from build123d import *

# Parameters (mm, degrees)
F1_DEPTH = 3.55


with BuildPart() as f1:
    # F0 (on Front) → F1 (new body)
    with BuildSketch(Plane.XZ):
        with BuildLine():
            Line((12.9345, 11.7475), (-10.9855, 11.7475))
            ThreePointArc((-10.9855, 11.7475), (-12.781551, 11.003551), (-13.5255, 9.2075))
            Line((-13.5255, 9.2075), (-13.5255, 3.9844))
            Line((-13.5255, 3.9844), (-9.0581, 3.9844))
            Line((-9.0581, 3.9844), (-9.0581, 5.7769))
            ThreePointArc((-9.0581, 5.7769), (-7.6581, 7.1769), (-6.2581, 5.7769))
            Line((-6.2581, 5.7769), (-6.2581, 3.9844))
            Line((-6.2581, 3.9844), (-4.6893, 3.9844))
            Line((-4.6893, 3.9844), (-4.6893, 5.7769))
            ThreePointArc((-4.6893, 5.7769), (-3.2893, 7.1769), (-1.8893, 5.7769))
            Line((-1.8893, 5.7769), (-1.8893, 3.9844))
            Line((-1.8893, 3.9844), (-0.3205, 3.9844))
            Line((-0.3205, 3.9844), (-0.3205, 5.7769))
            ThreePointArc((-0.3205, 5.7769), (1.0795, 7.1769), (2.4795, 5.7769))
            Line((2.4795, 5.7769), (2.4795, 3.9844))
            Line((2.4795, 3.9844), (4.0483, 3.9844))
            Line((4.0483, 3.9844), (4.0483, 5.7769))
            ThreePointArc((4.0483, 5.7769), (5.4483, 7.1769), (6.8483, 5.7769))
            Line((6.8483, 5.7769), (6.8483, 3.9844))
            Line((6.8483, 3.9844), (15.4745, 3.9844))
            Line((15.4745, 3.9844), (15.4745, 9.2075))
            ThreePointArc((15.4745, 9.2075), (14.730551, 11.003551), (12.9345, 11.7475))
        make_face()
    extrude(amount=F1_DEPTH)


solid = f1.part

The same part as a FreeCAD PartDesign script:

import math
import FreeCAD as App
import Part
import Sketcher

V = App.Vector
Q = App.Units.Quantity

doc = App.newDocument("Part")
body = doc.addObject("PartDesign::Body", "Body")

# Sketch on XZ plane
sketch1 = body.newObject("Sketcher::SketchObject", "Sketch")
sketch1.AttachmentSupport = (doc.getObject("XZ_Plane"), [""])
sketch1.MapMode = "FlatFace"
sketch1.addGeometry([
    Part.LineSegment(V(12.9, 11.7, 0), V(-11, 11.7, 0)),  # 0
    Part.ArcOfCircle(Part.Circle(V(-11, 9.2, 0), V(0, 0, 1), 2.5), math.radians(90), math.radians(180)),  # 1
    Part.LineSegment(V(-13.5, 9.2, 0), V(-13.5, 4, 0)),  # 2
    Part.LineSegment(V(-13.5, 4, 0), V(-9.1, 4, 0)),  # 3
    Part.LineSegment(V(-9.1, 4, 0), V(-9.1, 5.8, 0)),  # 4
    Part.ArcOfCircle(Part.Circle(V(-7.7, 5.8, 0), V(0, 0, 1), 1.4), math.radians(0), math.radians(180)),  # 5
    Part.LineSegment(V(-6.3, 5.8, 0), V(-6.3, 4, 0)),  # 6
    Part.LineSegment(V(-6.3, 4, 0), V(-4.7, 4, 0)),  # 7
    Part.LineSegment(V(-4.7, 4, 0), V(-4.7, 5.8, 0)),  # 8
    Part.ArcOfCircle(Part.Circle(V(-3.3, 5.8, 0), V(0, 0, 1), 1.4), math.radians(0), math.radians(180)),  # 9
    Part.LineSegment(V(-1.9, 5.8, 0), V(-1.9, 4, 0)),  # 10
    Part.LineSegment(V(-1.9, 4, 0), V(-0.3, 4, 0)),  # 11
    Part.LineSegment(V(-0.3, 4, 0), V(-0.3, 5.8, 0)),  # 12
    Part.ArcOfCircle(Part.Circle(V(1.1, 5.8, 0), V(0, 0, 1), 1.4), math.radians(0), math.radians(180)),  # 13
    Part.LineSegment(V(2.5, 5.8, 0), V(2.5, 4, 0)),  # 14
    Part.LineSegment(V(2.5, 4, 0), V(4, 4, 0)),  # 15
    Part.LineSegment(V(4, 4, 0), V(4, 5.8, 0)),  # 16
    Part.ArcOfCircle(Part.Circle(V(5.4, 5.8, 0), V(0, 0, 1), 1.4), math.radians(0), math.radians(180)),  # 17
    Part.LineSegment(V(6.8, 5.8, 0), V(6.8, 4, 0)),  # 18
    Part.LineSegment(V(6.8, 4, 0), V(15.5, 4, 0)),  # 19
    Part.LineSegment(V(15.5, 4, 0), V(15.5, 9.2, 0)),  # 20
    Part.ArcOfCircle(Part.Circle(V(12.9, 9.2, 0), V(0, 0, 1), 2.5), math.radians(0), math.radians(90)),  # 21
], False)
sketch1.addConstraint([
    Sketcher.Constraint("Tangent", 0, 2, 1, 1),
    Sketcher.Constraint("Tangent", 1, 2, 2, 1),
    Sketcher.Constraint("Coincident", 2, 2, 3, 1),
    Sketcher.Constraint("Coincident", 3, 2, 4, 1),
    Sketcher.Constraint("Tangent", 4, 2, 5, 2),
    Sketcher.Constraint("Tangent", 5, 1, 6, 1),
    Sketcher.Constraint("Coincident", 6, 2, 7, 1),
    Sketcher.Constraint("Coincident", 7, 2, 8, 1),
    Sketcher.Constraint("Tangent", 8, 2, 9, 2),
    Sketcher.Constraint("Tangent", 9, 1, 10, 1),
    Sketcher.Constraint("Coincident", 10, 2, 11, 1),
    Sketcher.Constraint("Coincident", 11, 2, 12, 1),
    Sketcher.Constraint("Tangent", 12, 2, 13, 2),
    Sketcher.Constraint("Tangent", 13, 1, 14, 1),
    Sketcher.Constraint("Coincident", 14, 2, 15, 1),
    Sketcher.Constraint("Coincident", 15, 2, 16, 1),
    Sketcher.Constraint("Tangent", 16, 2, 17, 2),
    Sketcher.Constraint("Tangent", 17, 1, 18, 1),
    Sketcher.Constraint("Coincident", 18, 2, 19, 1),
    Sketcher.Constraint("Coincident", 19, 2, 20, 1),
    Sketcher.Constraint("Tangent", 20, 2, 21, 1),
    Sketcher.Constraint("Tangent", 21, 2, 0, 1),
    Sketcher.Constraint("Horizontal", 0),
    Sketcher.Constraint("Vertical", 2),
    Sketcher.Constraint("Horizontal", 3),
    Sketcher.Constraint("Vertical", 4),
    Sketcher.Constraint("Vertical", 6),
    Sketcher.Constraint("Horizontal", 7),
    Sketcher.Constraint("Vertical", 8),
    Sketcher.Constraint("Vertical", 10),
    Sketcher.Constraint("Horizontal", 11),
    Sketcher.Constraint("Vertical", 12),
    Sketcher.Constraint("Vertical", 14),
    Sketcher.Constraint("Horizontal", 15),
    Sketcher.Constraint("Vertical", 16),
    Sketcher.Constraint("Vertical", 18),
    Sketcher.Constraint("Horizontal", 19),
    Sketcher.Constraint("Vertical", 20),
    Sketcher.Constraint("Equal", 5, 9),
    Sketcher.Constraint("Equal", 9, 13),
    Sketcher.Constraint("Equal", 13, 17),
    Sketcher.Constraint("Equal", 1, 21),
    Sketcher.Constraint("Horizontal", 5, 3, 9, 3),
    Sketcher.Constraint("Horizontal", 9, 3, 13, 3),
    Sketcher.Constraint("Horizontal", 13, 3, 17, 3),
    Sketcher.Constraint("Horizontal", 3, 2, 6, 2),
    Sketcher.Constraint("Horizontal", 7, 2, 10, 2),
    Sketcher.Constraint("Horizontal", 11, 2, 14, 2),
    Sketcher.Constraint("Horizontal", 15, 2, 18, 2),
    Sketcher.Constraint("Equal", 7, 11),
    Sketcher.Constraint("Equal", 11, 15),
    Sketcher.Constraint("Radius", 5, Q("1.4 mm")),
    Sketcher.Constraint("Radius", 1, Q("2.540001 mm")),
    Sketcher.Constraint("DistanceX", 0, 2, 0, 1, Q("23.92 mm")),
    Sketcher.Constraint("DistanceX", 3, 1, 3, 2, Q("4.4674 mm")),
    Sketcher.Constraint("DistanceX", 7, 1, 7, 2, Q("1.5688 mm")),
    Sketcher.Constraint("DistanceY", 2, 2, 2, 1, Q("5.2231 mm")),
    Sketcher.Constraint("DistanceY", 4, 1, 4, 2, Q("1.7925 mm")),
    Sketcher.Constraint("DistanceX", 1, 3, -1, 1, Q("10.985499 mm")),
    Sketcher.Constraint("DistanceY", -1, 1, 1, 3, Q("9.207499 mm")),
])
pad1 = body.newObject("PartDesign::Pad", "Pad")
pad1.Profile = sketch1
pad1.Length = 3.55

doc.recompute()
